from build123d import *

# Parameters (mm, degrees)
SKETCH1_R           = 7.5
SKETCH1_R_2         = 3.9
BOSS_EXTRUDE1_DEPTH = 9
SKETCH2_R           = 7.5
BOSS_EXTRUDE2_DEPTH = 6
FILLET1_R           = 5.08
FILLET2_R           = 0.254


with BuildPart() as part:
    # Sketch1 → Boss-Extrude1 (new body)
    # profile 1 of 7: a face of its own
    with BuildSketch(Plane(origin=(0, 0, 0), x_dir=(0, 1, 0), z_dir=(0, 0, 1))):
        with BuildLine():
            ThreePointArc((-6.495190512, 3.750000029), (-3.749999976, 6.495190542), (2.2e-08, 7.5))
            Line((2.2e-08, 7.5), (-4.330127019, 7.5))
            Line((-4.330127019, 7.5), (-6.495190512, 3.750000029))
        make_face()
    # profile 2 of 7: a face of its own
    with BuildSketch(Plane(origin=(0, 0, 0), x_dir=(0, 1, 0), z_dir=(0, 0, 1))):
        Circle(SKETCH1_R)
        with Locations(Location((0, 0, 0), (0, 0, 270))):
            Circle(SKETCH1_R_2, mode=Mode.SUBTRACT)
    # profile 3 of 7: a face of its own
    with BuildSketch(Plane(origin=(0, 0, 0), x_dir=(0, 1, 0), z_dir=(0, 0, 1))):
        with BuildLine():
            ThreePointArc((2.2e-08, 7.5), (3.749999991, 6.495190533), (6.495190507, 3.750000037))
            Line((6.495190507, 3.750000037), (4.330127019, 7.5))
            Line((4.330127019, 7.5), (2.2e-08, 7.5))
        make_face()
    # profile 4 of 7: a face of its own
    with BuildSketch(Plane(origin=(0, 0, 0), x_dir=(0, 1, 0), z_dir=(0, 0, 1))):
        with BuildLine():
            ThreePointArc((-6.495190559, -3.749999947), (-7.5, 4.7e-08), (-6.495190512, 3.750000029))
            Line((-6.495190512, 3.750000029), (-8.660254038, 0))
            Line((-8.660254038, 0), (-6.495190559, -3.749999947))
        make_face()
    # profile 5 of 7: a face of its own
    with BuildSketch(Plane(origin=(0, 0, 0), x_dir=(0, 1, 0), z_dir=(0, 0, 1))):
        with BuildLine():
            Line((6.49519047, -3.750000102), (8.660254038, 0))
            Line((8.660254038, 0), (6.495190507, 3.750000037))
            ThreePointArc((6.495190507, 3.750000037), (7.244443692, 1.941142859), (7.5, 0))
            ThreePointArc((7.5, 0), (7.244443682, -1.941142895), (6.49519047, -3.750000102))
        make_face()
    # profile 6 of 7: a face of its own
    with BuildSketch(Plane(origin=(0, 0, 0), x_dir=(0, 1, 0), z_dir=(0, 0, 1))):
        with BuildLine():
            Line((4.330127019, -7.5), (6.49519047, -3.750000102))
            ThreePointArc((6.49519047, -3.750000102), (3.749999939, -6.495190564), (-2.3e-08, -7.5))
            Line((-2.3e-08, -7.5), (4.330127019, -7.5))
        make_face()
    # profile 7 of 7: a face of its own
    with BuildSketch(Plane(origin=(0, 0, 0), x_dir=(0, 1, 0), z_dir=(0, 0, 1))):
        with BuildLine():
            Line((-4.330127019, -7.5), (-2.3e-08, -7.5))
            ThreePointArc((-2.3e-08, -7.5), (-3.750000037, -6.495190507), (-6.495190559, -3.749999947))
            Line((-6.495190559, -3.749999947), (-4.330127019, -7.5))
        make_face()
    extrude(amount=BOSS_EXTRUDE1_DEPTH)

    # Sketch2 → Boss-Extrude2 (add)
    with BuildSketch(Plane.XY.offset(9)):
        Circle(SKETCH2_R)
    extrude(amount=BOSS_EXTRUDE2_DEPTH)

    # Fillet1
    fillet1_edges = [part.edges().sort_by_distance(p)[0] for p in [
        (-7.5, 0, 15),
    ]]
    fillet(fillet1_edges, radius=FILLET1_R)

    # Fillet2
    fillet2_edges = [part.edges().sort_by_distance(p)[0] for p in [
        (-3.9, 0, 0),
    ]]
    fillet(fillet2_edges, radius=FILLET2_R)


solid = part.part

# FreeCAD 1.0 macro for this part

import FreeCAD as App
import Part
import Sketcher

V = App.Vector
Q = App.Units.Quantity


def edges_at(feature, points):
    """Names of the edges that pass closest to the given points."""
    edges = feature.Shape.Edges
    near = lambda p: min(range(len(edges)), key=lambda i: edges[i].distToShape(Part.Vertex(*p))[0])
    return sorted({f"Edge{near(p) + 1}" for p in points})

doc = App.newDocument("Part")
body = doc.addObject("PartDesign::Body", "Body")

# Sketch on XY plane
sketch1 = body.newObject("Sketcher::SketchObject", "Sketch")
sketch1.AttachmentSupport = (doc.getObject("XY_Plane"), [""])
sketch1.MapMode = "FlatFace"
sketch1.addGeometry([
    Part.LineSegment(V(-7.5, -4.330127, 0), V(-3.75, -6.495191, 0)),  # 0
    Part.LineSegment(V(-3.75, -6.495191, 0), V(0, -8.660254, 0)),  # 1
    Part.LineSegment(V(0, -8.660254, 0), V(3.75, -6.495191, 0)),  # 2
    Part.LineSegment(V(3.75, -6.495191, 0), V(7.5, -4.330127, 0)),  # 3
    Part.LineSegment(V(7.5, -4.330127, 0), V(7.5, 4.330127, 0)),  # 4
    Part.LineSegment(V(7.5, 4.330127, 0), V(3.75, 6.49519, 0)),  # 5
    Part.LineSegment(V(3.75, 6.49519, 0), V(0, 8.660254, 0)),  # 6
    Part.LineSegment(V(0, 8.660254, 0), V(-3.75, 6.495191, 0)),  # 7
    Part.LineSegment(V(-3.75, 6.495191, 0), V(-7.5, 4.330127, 0)),  # 8
    Part.LineSegment(V(-7.5, 4.330127, 0), V(-7.5, -4.330127, 0)),  # 9
    Part.Circle(V(0, 0, 0), V(0, 0, 1), 3.9),  # 10
], False)
sketch1.addConstraint([
    Sketcher.Constraint("Coincident", 0, 2, 1, 1),
    Sketcher.Constraint("Coincident", 1, 2, 2, 1),
    Sketcher.Constraint("Coincident", 2, 2, 3, 1),
    Sketcher.Constraint("Coincident", 3, 2, 4, 1),
    Sketcher.Constraint("Coincident", 4, 2, 5, 1),
    Sketcher.Constraint("Coincident", 5, 2, 6, 1),
    Sketcher.Constraint("Coincident", 6, 2, 7, 1),
    Sketcher.Constraint("Coincident", 7, 2, 8, 1),
    Sketcher.Constraint("Coincident", 8, 2, 9, 1),
    Sketcher.Constraint("Coincident", 9, 2, 0, 1),
    Sketcher.Constraint("Vertical", 4),
    Sketcher.Constraint("Vertical", 9),
    Sketcher.Constraint("Coincident", 10, 3, -1, 1),
    Sketcher.Constraint("Symmetric", 0, 2, 5, 2, -1, 1),
    Sketcher.Constraint("Symmetric", 1, 2, 6, 2, -1, 1),
    Sketcher.Constraint("Symmetric", 2, 2, 7, 2, -1, 1),
    Sketcher.Constraint("Symmetric", 3, 2, 8, 2, -1, 1),
    Sketcher.Constraint("Symmetric", 0, 2, 2, 2, -2),
    Sketcher.Constraint("PointOnObject", 1, 2, -2),
    Sketcher.Constraint("Parallel", 0, 1),
    Sketcher.Constraint("Parallel", 2, 3),
    Sketcher.Constraint("Parallel", 1, 5),
    Sketcher.Constraint("Equal", 0, 1),
    Sketcher.Constraint("Diameter", 10, Q("7.8 mm")),
    Sketcher.Constraint("Angle", 0, Q("-30 deg")),
    Sketcher.Constraint("DistanceX", -1, 1, 3, 2, Q("7.5 mm")),
    Sketcher.Constraint("DistanceY", 4, 1, 4, 2, Q("8.660254 mm")),
])
pad1 = body.newObject("PartDesign::Pad", "Pad")
pad1.Profile = sketch1
pad1.Length = 9

# Sketch on XY plane
sketch2 = body.newObject("Sketcher::SketchObject", "Sketch001")
sketch2.AttachmentSupport = (doc.getObject("XY_Plane"), [""])
sketch2.MapMode = "FlatFace"
sketch2.AttachmentOffset = App.Placement(V(0, 0, 9), App.Rotation())
sketch2.addGeometry(Part.Circle(V(0, 0, 0), V(0, 0, 1), 7.5), False)
sketch2.addConstraint([
    Sketcher.Constraint("Coincident", 0, 3, -1, 1),
    Sketcher.Constraint("Diameter", 0, Q("15 mm")),
])
pad2 = body.newObject("PartDesign::Pad", "Pad001")
pad2.Profile = sketch2
pad2.Length = 6
doc.recompute()

fillet = body.newObject("PartDesign::Fillet", "Fillet")
fillet.Base = (pad2, edges_at(pad2, [(-7.5, 0, 15)]))
fillet.Radius = 5.08
doc.recompute()

fillet2 = body.newObject("PartDesign::Fillet", "Fillet001")
fillet2.Base = (fillet, edges_at(fillet, [(-3.9, 0, 0)]))
fillet2.Radius = 0.254

doc.recompute()
